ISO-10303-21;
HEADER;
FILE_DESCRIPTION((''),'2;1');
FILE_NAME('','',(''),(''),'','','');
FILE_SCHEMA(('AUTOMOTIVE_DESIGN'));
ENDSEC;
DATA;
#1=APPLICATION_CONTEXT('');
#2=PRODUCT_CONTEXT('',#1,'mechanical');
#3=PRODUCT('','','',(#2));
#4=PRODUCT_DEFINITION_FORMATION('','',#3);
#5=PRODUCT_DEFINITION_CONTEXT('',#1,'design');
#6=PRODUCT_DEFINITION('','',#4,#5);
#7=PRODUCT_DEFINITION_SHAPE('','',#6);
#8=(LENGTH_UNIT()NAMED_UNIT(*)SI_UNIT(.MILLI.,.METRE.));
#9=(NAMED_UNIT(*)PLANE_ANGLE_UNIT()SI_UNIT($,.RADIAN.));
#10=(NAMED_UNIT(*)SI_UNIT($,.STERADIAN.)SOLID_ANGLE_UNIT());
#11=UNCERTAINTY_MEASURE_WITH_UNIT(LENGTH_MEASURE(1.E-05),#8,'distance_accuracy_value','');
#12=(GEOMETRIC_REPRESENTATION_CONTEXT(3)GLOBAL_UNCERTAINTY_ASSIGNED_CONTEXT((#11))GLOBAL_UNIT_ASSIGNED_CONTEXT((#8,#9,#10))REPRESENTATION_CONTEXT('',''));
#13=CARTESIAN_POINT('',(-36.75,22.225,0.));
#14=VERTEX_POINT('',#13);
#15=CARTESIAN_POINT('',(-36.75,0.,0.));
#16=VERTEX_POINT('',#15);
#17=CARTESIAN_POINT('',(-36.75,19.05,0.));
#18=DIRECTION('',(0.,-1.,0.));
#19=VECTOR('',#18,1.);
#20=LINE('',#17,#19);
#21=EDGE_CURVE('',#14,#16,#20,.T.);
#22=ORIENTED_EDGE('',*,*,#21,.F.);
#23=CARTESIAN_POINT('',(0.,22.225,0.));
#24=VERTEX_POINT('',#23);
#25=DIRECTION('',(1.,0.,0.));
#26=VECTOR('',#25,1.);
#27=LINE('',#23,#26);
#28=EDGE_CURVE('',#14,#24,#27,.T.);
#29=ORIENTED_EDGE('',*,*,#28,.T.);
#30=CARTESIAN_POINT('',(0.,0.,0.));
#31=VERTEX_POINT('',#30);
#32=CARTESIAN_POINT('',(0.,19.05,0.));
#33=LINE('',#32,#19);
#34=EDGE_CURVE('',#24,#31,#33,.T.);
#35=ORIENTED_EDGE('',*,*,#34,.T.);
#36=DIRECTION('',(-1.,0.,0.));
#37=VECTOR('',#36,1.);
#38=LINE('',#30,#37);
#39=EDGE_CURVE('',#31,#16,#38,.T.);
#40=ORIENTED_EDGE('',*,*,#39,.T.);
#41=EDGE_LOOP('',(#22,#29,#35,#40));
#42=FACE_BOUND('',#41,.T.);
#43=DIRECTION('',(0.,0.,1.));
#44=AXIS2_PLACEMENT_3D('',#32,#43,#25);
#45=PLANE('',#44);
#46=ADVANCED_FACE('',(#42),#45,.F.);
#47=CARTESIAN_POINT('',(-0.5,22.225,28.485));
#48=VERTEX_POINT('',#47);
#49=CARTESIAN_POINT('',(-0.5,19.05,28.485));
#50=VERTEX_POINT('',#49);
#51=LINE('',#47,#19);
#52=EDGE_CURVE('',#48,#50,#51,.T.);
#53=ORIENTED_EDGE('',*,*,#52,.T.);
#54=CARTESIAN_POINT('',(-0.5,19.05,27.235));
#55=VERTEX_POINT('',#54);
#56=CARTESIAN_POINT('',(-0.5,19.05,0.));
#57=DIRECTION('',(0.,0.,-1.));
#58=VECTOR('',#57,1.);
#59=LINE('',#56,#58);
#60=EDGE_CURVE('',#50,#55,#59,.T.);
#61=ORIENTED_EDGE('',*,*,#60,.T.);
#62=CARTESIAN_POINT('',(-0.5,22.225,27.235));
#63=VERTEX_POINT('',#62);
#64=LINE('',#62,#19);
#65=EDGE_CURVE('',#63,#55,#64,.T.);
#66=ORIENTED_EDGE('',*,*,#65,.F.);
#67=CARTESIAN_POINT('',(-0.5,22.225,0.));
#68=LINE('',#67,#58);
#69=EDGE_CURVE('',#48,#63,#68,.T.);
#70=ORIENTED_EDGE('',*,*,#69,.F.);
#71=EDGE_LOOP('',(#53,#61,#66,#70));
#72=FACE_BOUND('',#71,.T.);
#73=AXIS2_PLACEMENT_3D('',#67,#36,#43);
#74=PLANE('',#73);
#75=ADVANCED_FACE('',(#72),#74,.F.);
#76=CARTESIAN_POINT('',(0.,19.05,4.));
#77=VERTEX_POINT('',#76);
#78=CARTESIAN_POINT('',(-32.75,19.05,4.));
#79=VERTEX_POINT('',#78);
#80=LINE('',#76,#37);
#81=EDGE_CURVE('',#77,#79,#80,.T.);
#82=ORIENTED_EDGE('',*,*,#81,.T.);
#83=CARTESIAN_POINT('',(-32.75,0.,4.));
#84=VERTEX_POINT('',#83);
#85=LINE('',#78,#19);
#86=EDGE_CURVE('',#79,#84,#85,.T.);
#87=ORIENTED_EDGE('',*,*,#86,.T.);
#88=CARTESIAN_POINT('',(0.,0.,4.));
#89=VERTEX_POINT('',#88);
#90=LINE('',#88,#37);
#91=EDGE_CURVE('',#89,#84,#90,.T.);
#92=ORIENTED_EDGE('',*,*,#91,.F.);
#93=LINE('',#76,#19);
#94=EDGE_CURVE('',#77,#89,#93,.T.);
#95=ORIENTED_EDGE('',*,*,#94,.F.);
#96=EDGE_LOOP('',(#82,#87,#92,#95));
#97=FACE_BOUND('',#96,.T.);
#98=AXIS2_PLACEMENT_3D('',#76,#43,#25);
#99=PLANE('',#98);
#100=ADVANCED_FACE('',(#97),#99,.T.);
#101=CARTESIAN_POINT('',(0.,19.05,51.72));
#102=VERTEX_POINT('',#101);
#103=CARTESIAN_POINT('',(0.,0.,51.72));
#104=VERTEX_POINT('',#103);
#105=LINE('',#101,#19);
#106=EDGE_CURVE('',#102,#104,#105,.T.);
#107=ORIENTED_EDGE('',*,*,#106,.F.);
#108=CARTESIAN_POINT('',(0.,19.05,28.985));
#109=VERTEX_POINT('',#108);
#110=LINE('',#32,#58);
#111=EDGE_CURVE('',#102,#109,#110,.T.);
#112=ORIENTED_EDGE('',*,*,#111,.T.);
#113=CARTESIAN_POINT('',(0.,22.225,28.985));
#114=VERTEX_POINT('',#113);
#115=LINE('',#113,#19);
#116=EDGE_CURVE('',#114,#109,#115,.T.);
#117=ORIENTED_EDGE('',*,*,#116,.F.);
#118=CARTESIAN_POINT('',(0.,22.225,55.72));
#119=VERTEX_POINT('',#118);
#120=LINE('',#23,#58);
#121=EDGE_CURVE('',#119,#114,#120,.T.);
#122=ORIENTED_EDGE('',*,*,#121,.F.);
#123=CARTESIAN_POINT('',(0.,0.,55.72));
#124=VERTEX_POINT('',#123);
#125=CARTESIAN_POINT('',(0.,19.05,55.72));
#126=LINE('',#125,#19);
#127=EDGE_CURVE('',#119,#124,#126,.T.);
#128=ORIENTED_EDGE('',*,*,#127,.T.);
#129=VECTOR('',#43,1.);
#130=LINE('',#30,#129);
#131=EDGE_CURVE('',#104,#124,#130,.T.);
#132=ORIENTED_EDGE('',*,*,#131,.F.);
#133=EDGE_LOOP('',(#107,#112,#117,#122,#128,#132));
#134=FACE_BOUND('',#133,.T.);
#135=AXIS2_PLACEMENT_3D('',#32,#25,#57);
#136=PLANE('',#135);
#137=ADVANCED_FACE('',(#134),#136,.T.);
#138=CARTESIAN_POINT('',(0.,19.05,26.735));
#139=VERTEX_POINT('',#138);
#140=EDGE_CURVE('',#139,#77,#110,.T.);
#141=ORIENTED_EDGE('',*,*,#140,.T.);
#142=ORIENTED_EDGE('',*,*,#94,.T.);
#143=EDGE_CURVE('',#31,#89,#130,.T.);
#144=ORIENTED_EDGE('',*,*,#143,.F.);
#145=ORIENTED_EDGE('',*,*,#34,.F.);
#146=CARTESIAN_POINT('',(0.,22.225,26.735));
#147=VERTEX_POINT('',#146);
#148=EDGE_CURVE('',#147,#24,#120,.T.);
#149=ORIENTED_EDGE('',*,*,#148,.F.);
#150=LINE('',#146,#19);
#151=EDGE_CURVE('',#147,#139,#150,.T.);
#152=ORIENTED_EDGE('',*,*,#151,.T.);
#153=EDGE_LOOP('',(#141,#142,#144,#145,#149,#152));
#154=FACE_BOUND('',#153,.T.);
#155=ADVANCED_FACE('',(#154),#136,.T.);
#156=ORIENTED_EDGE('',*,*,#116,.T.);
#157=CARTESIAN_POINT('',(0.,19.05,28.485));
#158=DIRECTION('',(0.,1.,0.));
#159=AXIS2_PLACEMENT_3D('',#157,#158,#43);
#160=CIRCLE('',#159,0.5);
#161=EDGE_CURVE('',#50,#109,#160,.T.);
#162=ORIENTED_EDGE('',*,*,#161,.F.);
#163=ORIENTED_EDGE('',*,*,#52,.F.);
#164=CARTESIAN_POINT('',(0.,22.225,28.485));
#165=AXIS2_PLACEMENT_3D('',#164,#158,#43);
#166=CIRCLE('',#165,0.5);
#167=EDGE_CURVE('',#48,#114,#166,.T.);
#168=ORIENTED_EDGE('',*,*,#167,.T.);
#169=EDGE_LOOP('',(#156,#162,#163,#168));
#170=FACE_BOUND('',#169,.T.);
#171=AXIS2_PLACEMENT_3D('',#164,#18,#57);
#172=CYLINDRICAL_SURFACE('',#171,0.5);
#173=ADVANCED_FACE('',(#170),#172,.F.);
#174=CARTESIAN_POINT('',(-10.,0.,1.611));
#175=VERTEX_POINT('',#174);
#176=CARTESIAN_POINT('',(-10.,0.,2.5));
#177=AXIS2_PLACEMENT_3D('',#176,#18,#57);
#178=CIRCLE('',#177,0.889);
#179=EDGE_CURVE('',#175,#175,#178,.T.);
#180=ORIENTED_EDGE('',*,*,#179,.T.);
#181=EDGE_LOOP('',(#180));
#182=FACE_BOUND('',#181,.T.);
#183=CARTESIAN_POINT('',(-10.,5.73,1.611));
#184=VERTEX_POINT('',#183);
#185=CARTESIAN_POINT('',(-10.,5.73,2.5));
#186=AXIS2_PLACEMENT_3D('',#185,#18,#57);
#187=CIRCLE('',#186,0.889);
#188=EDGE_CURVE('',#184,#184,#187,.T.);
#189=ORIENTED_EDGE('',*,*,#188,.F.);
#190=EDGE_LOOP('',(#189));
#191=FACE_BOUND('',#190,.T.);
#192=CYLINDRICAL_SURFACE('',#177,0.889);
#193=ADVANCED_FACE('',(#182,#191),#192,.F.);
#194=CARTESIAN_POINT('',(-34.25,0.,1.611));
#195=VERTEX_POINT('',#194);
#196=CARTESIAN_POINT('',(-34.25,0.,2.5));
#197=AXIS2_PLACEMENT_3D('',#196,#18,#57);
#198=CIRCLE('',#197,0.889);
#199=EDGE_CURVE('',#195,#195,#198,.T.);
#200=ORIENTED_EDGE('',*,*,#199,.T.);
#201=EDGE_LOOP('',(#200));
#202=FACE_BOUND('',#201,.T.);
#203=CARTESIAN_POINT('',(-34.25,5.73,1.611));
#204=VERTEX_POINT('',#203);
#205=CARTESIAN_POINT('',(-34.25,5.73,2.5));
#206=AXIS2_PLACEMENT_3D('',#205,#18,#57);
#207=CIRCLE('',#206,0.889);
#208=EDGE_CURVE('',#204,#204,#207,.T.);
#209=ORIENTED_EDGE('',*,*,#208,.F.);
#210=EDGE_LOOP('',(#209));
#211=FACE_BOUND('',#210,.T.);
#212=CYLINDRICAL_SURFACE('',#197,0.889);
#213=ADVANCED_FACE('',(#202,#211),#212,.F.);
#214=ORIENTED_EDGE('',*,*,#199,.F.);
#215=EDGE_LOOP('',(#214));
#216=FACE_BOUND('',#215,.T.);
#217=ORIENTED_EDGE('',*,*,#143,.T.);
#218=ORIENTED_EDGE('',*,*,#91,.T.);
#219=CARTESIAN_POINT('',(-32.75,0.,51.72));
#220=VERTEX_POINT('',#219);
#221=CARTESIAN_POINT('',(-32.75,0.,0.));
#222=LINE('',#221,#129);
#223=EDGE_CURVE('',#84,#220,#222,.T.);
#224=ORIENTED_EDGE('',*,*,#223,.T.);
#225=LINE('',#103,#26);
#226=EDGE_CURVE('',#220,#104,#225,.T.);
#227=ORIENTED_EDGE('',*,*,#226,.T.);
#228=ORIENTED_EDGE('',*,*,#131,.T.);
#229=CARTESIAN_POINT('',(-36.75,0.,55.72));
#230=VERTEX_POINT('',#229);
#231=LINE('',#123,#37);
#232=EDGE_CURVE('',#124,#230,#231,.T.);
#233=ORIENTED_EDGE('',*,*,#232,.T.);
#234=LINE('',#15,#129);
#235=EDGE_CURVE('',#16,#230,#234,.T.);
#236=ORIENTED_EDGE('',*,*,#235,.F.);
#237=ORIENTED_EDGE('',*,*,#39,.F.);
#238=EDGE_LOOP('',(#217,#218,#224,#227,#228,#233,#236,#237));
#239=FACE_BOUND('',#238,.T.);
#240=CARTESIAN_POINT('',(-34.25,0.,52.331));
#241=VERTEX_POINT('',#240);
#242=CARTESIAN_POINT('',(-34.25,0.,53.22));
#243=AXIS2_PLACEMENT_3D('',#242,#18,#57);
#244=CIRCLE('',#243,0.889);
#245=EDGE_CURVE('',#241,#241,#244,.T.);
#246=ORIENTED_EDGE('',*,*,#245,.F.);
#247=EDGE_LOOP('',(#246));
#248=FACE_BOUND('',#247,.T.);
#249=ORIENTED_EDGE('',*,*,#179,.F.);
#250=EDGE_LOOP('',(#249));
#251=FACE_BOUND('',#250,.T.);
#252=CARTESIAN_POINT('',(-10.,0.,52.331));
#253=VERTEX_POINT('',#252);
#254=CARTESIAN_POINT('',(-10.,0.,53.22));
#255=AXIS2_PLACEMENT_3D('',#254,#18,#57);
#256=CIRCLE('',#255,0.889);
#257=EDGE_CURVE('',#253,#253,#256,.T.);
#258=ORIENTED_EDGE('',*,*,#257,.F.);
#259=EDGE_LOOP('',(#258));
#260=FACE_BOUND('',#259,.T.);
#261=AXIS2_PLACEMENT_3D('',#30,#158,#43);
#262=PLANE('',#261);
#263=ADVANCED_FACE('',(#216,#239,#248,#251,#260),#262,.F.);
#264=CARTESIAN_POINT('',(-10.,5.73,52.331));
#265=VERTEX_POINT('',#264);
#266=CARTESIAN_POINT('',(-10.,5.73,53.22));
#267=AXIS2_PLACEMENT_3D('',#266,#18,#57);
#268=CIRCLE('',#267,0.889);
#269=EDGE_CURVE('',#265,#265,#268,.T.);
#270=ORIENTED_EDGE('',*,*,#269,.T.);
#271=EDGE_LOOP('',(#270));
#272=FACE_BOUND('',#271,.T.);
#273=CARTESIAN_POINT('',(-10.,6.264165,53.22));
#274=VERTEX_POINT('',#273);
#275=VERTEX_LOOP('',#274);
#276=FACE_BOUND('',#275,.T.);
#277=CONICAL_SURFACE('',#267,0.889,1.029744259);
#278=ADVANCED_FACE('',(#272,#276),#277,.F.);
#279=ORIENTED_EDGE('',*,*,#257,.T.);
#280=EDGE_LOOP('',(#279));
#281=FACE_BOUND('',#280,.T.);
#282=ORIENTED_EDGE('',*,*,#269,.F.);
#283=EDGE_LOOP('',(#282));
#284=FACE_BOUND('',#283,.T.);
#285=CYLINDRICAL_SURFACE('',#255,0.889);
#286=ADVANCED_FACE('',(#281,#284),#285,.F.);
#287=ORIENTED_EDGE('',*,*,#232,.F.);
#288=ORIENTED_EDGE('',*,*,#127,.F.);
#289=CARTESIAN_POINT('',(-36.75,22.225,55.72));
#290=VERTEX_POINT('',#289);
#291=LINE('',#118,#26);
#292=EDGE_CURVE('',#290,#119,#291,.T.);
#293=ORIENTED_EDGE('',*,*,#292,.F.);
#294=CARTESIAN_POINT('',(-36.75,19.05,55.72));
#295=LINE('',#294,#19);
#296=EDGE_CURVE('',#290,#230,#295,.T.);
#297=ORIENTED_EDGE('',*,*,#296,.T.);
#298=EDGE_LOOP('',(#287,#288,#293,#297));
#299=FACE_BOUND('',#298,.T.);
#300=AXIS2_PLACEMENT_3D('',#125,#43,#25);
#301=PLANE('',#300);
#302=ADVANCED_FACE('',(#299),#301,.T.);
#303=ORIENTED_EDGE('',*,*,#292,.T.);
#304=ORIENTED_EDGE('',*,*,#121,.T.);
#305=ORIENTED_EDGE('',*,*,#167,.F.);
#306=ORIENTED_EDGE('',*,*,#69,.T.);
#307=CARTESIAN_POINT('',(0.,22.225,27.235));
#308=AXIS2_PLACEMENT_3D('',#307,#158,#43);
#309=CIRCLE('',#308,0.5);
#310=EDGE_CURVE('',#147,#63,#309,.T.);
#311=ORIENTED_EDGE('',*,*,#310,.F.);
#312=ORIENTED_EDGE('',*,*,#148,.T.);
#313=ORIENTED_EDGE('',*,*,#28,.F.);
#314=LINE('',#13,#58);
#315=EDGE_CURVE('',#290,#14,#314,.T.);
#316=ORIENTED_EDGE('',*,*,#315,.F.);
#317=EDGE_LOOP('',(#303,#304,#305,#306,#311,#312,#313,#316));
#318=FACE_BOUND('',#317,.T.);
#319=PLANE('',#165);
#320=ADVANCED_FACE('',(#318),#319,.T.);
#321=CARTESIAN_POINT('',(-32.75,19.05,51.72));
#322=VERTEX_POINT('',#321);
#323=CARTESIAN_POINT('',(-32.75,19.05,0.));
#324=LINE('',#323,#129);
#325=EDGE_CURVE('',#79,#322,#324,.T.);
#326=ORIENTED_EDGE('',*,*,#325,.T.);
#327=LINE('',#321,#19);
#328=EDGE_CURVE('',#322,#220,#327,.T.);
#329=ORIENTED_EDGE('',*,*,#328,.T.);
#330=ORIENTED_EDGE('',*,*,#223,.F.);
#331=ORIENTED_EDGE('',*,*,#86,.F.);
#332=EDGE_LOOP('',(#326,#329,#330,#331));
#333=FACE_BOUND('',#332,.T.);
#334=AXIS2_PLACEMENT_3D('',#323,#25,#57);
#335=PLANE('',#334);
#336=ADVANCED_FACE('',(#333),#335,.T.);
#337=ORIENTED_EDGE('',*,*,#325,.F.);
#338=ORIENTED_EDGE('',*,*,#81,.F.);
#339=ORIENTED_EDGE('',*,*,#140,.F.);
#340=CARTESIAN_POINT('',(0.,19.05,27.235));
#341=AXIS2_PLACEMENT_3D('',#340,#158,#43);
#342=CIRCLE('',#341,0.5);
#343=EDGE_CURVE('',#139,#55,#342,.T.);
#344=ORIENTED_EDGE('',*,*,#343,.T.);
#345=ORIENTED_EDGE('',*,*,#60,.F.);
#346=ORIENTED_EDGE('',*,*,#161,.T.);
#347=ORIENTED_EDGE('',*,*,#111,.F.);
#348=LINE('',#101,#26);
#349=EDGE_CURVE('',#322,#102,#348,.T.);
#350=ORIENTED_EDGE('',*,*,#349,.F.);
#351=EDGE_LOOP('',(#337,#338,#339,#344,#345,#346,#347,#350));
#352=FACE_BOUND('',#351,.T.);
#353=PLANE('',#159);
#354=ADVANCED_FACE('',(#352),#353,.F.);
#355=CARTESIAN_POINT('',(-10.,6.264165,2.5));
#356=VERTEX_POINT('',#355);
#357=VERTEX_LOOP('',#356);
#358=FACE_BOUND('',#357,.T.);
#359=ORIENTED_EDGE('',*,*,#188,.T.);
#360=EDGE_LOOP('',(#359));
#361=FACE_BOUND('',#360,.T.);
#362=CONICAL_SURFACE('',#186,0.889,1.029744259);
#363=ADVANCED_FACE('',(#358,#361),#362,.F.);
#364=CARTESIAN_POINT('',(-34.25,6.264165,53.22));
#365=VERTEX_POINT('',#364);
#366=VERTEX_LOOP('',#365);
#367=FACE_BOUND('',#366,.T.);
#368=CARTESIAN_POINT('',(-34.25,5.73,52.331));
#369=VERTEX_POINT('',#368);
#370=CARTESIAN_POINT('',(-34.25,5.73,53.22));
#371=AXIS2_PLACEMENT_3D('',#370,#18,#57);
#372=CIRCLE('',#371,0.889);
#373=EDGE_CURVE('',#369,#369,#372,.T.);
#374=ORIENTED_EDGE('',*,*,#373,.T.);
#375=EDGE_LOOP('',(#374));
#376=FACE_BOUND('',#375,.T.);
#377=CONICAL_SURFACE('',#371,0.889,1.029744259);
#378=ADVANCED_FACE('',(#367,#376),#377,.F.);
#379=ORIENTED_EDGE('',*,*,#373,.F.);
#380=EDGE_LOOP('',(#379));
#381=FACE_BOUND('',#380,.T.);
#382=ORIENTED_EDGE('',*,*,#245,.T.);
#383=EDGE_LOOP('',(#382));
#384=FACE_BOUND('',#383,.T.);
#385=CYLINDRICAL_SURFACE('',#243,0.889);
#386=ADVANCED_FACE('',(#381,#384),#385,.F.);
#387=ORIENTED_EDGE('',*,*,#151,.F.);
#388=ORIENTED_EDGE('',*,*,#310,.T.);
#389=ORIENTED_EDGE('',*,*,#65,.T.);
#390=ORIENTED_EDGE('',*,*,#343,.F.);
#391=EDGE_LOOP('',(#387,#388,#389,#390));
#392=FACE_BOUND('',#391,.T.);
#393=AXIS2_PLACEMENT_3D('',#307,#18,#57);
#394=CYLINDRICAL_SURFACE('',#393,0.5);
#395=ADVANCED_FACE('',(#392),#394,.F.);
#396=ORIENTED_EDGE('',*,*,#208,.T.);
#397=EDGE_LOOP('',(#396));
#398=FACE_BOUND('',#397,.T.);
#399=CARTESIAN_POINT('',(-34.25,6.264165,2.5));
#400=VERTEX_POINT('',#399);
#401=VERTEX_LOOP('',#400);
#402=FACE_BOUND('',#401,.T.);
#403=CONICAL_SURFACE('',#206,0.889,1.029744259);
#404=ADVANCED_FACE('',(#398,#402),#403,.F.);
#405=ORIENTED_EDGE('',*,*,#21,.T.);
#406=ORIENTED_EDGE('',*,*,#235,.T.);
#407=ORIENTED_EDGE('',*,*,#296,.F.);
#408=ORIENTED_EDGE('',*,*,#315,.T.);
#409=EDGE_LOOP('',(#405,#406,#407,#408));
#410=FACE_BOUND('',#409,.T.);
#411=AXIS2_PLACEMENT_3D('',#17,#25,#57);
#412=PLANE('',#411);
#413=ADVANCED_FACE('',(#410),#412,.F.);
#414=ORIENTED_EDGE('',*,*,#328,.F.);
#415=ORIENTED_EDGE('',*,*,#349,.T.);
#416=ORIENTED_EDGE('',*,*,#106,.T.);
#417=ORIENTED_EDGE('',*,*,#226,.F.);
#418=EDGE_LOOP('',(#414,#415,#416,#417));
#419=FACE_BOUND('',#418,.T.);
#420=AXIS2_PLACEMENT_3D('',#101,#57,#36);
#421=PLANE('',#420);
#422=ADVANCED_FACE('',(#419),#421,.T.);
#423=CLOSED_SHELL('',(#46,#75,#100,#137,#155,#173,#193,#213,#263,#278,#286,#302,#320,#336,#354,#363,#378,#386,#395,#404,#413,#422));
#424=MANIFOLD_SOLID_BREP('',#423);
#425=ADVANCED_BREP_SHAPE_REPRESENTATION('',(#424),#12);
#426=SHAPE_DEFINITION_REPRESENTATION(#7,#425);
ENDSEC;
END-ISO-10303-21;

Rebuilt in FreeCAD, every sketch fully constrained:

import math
import FreeCAD as App
import Part
import Sketcher
from FreeCAD import Vector
Q = App.Units.Quantity


def add_polygon(sketch, points):
    """Adds a closed chain of lines whose ends are joined by coincident constraints."""
    first, n = sketch.GeometryCount, len(points)
    for a, b in zip(points, points[1:] + points[:1]):
        sketch.addGeometry(Part.LineSegment(App.Vector(*a, 0), App.Vector(*b, 0)), False)
    for i in range(n):
        sketch.addConstraint(Sketcher.Constraint("Coincident", first + i, 2, first + (i + 1) % n, 1))

doc = App.newDocument("Part")
body = doc.addObject("PartDesign::Body", "Body")

sketch1 = body.newObject("Sketcher::SketchObject", "Sketch")
sketch1.AttachmentSupport = (doc.getObject("XZ_Plane"), [""])
sketch1.MapMode = "FlatFace"
add_polygon(sketch1, [(-32.8, 4), (0, 4), (0, 0), (-36.8, 0), (-36.8, 55.7), (0, 55.7), (0, 51.7), (-32.8, 51.7)])
sketch1.addConstraint([
    Sketcher.Constraint("Horizontal", 0),
    Sketcher.Constraint("Vertical", 1),
    Sketcher.Constraint("Horizontal", 2),
    Sketcher.Constraint("Vertical", 3),
    Sketcher.Constraint("Horizontal", 4),
    Sketcher.Constraint("Vertical", 5),
    Sketcher.Constraint("Horizontal", 6),
    Sketcher.Constraint("Vertical", 7),
    Sketcher.Constraint("Coincident", 1, 2, -1, 1),
    Sketcher.Constraint("PointOnObject", 4, 2, -2),
    Sketcher.Constraint("Equal", 1, 5),
    Sketcher.Constraint("DistanceX", 0, 1, 0, 2, 32.75),
    Sketcher.Constraint("DistanceX", 2, 2, 2, 1, 36.75),
    Sketcher.Constraint("DistanceY", 1, 2, 1, 1, 4.0),
    Sketcher.Constraint("DistanceY", 3, 1, 3, 2, 55.72),
])
pad1 = body.newObject("PartDesign::Pad", "Pad")
pad1.Profile = sketch1
pad1.Length = Q("0.75 in")
pad1.Reversed = True

sketch2 = body.newObject("Sketcher::SketchObject", "Sketch001")
sketch2.AttachmentSupport = (doc.getObject("XZ_Plane"), [""])
sketch2.MapMode = "FlatFace"
sketch2.AttachmentOffset = App.Placement(Vector(0, 0, -0.75 * 25.4), App.Rotation())
sketch2.addGeometry([
    Part.LineSegment(Vector(0, 26.73, 0), Vector(0, 0, 0)),
    Part.LineSegment(Vector(0, 0, 0), Vector(-36.75, 0, 0)),
    Part.LineSegment(Vector(-36.75, 0, 0), Vector(-36.75, 55.72, 0)),
    Part.LineSegment(Vector(-36.75, 55.72, 0), Vector(0, 55.72, 0)),
    Part.LineSegment(Vector(0, 55.72, 0), Vector(0, 28.98, 0)),
    Part.ArcOfCircle(Part.Circle(Vector(0, 28.49, 0), Vector(0, 0, 1), 0.5), math.radians(90), math.radians(180)),
    Part.LineSegment(Vector(-0.5, 28.48, 0), Vector(-0.5, 27.23, 0)),
    Part.ArcOfCircle(Part.Circle(Vector(0, 27.23, 0), Vector(0, 0, 1), 0.5), math.radians(180), math.radians(270)),
], False)
sketch2.addConstraint([
    Sketcher.Constraint("Coincident", 0, 2, 1, 1),
    Sketcher.Constraint("Coincident", 1, 2, 2, 1),
    Sketcher.Constraint("Coincident", 2, 2, 3, 1),
    Sketcher.Constraint("Coincident", 3, 2, 4, 1),
    Sketcher.Constraint("Coincident", 4, 2, 5, 1),
    Sketcher.Constraint("Tangent", 5, 2, 6, 1),
    Sketcher.Constraint("Tangent", 6, 2, 7, 1),
    Sketcher.Constraint("Coincident", 7, 2, 0, 1),
    Sketcher.Constraint("Vertical", 0),
    Sketcher.Constraint("Horizontal", 1),
    Sketcher.Constraint("Vertical", 2),
    Sketcher.Constraint("Horizontal", 3),
    Sketcher.Constraint("Vertical", 4),
    Sketcher.Constraint("Vertical", 6),
    Sketcher.Constraint("Coincident", 0, 2, -1, 1),
    Sketcher.Constraint("Equal", 5, 7),
    Sketcher.Constraint("PointOnObject", 5, 3, -2),
    Sketcher.Constraint("PointOnObject", 3, 2, -2),
    Sketcher.Constraint("Equal", 0, 4),
    Sketcher.Constraint("Radius", 5, 0.5),
    Sketcher.Constraint("DistanceX", 1, 2, 1, 1, 36.75),
    Sketcher.Constraint("DistanceY", 0, 2, 0, 1, 26.735),
    Sketcher.Constraint("DistanceY", 2, 1, 2, 2, 55.72),
])
pad2 = body.newObject("PartDesign::Pad", "Pad001")
pad2.Profile = sketch2
pad2.Length = Q("0.125 in")
pad2.Reversed = True

sketch3 = body.newObject("Sketcher::SketchObject", "Sketch002")
sketch3.AttachmentSupport = (doc.getObject("XZ_Plane"), [""])
sketch3.MapMode = "FlatFace"
sketch3.addGeometry([
    Part.Circle(Vector(-10, 53.2, 0), Vector(0, 0, 1), 0.9),
    Part.Circle(Vector(-34.2, 53.2, 0), Vector(0, 0, 1), 0.9),
    Part.Circle(Vector(-34.2, 2.5, 0), Vector(0, 0, 1), 0.9),
    Part.Circle(Vector(-10, 2.5, 0), Vector(0, 0, 1), 0.9),
], False)
sketch3.addConstraint([
    Sketcher.Constraint("Equal", 0, 1),
    Sketcher.Constraint("Equal", 1, 2),
    Sketcher.Constraint("Equal", 2, 3),
    Sketcher.Constraint("Horizontal", 0, 3, 1, 3),
    Sketcher.Constraint("Horizontal", 2, 3, 3, 3),
    Sketcher.Constraint("Vertical", 1, 3, 2, 3),
    Sketcher.Constraint("Vertical", 0, 3, 3, 3),
    Sketcher.Constraint("Diameter", 0, Q("0.07 in")),
    Sketcher.Constraint("DistanceX", 0, 3, -1, 1, 10.0),
    Sketcher.Constraint("DistanceY", -1, 1, 0, 3, 53.22),
    Sketcher.Constraint("DistanceX", 1, 3, -1, 1, 34.25),
    Sketcher.Constraint("DistanceY", -1, 1, 2, 3, 2.5),
])
doc.recompute()
hole = body.newObject("PartDesign::Hole", "Hole")
hole.Profile = sketch3
hole.ThreadType = "None"
hole.Diameter = Q("0.07 in")
hole.DepthType = "Dimension"
hole.Depth = 5.73
hole.DrillPoint = "Angled"
hole.DrillPointAngle = 118

doc.recompute()
